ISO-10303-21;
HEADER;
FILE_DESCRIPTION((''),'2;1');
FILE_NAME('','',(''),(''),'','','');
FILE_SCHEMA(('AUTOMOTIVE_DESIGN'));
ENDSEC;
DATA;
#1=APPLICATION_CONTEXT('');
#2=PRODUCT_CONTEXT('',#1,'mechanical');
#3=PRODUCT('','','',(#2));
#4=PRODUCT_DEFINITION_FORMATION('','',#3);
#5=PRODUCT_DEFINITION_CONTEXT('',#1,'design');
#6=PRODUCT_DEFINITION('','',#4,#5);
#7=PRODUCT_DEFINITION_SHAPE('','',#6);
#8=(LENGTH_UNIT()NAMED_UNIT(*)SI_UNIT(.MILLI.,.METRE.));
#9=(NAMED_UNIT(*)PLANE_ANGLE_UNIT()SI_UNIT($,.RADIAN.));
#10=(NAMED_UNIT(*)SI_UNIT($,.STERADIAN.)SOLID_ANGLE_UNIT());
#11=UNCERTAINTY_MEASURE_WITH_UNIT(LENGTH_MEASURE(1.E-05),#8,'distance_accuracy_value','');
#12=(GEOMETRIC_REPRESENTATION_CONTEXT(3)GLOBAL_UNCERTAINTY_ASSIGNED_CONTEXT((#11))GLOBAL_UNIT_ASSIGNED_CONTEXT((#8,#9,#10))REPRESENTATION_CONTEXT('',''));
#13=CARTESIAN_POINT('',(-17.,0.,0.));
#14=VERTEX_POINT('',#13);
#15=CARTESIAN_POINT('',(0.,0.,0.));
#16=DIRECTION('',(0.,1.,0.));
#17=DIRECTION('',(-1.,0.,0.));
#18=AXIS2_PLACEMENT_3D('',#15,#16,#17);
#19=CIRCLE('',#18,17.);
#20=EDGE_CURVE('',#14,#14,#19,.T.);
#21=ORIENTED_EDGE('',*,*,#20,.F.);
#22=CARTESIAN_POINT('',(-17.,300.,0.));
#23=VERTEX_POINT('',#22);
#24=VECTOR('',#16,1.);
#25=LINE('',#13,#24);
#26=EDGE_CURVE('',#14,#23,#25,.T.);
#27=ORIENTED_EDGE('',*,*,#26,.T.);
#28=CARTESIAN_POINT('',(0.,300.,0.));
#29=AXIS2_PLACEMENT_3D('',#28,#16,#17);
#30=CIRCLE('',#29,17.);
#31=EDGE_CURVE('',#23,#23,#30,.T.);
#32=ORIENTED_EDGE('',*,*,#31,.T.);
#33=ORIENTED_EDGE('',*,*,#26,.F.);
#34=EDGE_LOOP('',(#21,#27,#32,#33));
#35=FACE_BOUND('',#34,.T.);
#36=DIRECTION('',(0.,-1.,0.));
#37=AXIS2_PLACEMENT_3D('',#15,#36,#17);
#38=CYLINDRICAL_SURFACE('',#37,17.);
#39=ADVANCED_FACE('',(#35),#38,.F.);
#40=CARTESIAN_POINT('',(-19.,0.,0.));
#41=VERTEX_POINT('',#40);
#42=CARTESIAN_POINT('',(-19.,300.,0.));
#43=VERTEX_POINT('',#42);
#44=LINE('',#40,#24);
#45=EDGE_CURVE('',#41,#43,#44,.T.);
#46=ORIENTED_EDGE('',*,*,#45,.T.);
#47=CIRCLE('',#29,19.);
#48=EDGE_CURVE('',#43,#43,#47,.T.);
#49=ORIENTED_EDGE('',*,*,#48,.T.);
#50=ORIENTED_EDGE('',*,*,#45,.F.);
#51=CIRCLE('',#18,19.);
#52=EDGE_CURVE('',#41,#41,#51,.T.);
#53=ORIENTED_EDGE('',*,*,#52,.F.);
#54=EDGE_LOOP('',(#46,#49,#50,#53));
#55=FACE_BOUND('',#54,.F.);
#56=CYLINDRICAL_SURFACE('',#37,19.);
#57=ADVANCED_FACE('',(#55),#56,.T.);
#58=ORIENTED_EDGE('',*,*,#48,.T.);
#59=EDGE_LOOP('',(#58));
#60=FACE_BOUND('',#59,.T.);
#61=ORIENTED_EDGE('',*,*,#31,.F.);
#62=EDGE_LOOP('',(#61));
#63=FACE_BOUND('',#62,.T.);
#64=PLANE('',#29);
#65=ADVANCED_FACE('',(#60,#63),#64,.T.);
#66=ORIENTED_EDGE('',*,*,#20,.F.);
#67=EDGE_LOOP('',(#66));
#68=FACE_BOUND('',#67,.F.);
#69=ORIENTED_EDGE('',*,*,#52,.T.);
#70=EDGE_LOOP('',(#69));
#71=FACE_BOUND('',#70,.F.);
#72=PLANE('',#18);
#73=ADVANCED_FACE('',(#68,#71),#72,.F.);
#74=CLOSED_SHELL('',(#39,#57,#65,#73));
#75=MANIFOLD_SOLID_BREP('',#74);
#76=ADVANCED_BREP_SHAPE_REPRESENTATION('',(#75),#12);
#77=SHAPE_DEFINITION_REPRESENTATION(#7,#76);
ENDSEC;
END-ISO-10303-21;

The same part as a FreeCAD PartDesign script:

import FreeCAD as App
import Part
import Sketcher

V = App.Vector

doc = App.newDocument("Part")
body = doc.addObject("PartDesign::Body", "Body")

sketch1 = body.newObject("Sketcher::SketchObject", "Sketch")
sketch1.AttachmentSupport = (doc.getObject("XZ_Plane"), [""])
sketch1.MapMode = "FlatFace"
sketch1.addGeometry([
    Part.Circle(V(0, 0, 0), V(0, 0, 1), 19),
    Part.Circle(V(0, 0, 0), V(0, 0, 1), 17),
], False)
sketch1.addConstraint([
    Sketcher.Constraint("Coincident", 0, 3, -1, 1),
    Sketcher.Constraint("Coincident", 1, 3, -1, 1),
    Sketcher.Constraint("Diameter", 0, 38.0),
    Sketcher.Constraint("Diameter", 1, 34.0),
])
pad1 = body.newObject("PartDesign::Pad", "Pad")
pad1.Profile = sketch1
pad1.Length = 300
pad1.Reversed = True

doc.recompute()
